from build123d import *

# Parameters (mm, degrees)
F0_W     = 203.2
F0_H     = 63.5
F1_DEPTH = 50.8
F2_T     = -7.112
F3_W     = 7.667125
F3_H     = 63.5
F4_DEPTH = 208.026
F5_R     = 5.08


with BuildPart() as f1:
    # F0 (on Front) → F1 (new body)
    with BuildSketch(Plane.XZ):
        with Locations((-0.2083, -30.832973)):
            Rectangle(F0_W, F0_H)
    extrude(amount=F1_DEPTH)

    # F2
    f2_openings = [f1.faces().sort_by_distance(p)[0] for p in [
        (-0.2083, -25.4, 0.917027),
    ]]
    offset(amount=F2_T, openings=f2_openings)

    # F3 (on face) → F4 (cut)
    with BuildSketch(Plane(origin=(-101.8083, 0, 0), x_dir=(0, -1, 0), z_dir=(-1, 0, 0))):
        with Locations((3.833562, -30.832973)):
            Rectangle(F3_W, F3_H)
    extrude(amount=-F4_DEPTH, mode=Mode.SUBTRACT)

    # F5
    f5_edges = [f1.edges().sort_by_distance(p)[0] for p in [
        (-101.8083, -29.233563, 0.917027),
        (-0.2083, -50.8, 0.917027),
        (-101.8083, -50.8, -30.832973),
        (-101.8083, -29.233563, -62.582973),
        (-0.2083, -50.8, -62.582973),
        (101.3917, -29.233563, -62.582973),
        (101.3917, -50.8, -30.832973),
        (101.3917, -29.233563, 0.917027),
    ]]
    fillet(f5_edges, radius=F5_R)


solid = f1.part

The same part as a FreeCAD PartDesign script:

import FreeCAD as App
import Part
import Sketcher
from FreeCAD import Vector
Q = App.Units.Quantity


def edges_at(feature, points):
    """Names of the edges that pass closest to the given points."""
    edges = feature.Shape.Edges
    near = lambda p: min(range(len(edges)), key=lambda i: edges[i].distToShape(Part.Vertex(*p))[0])
    return sorted({f"Edge{near(p) + 1}" for p in points})


def faces_at(feature, points):
    """Names of the faces that lie closest to the given points."""
    faces = feature.Shape.Faces
    near = lambda p: min(range(len(faces)), key=lambda i: faces[i].distToShape(Part.Vertex(*p))[0])
    return sorted({f"Face{near(p) + 1}" for p in points})


def add_polygon(sketch, points):
    """Adds a closed chain of lines whose ends are joined by coincident constraints."""
    first, n = sketch.GeometryCount, len(points)
    for a, b in zip(points, points[1:] + points[:1]):
        sketch.addGeometry(Part.LineSegment(App.Vector(*a, 0), App.Vector(*b, 0)), False)
    for i in range(n):
        sketch.addConstraint(Sketcher.Constraint("Coincident", first + i, 2, first + (i + 1) % n, 1))

doc = App.newDocument("Part")
body = doc.addObject("PartDesign::Body", "Body")

# Sketch on XZ plane
sketch1 = body.newObject("Sketcher::SketchObject", "Sketch")
sketch1.AttachmentSupport = (doc.getObject("XZ_Plane"), [""])
sketch1.MapMode = "FlatFace"
add_polygon(sketch1, [(-101.8083, 0.917027), (-101.8083, -62.582973), (101.3917, -62.582973), (101.3917, 0.917027)])  # lines 0-3
sketch1.addConstraint([
    Sketcher.Constraint("Vertical", 0),
    Sketcher.Constraint("Horizontal", 1),
    Sketcher.Constraint("Vertical", 2),
    Sketcher.Constraint("Horizontal", 3),
    Sketcher.Constraint("DistanceX", 1, 1, 1, 2, Q("8 in")),
    Sketcher.Constraint("DistanceY", 0, 2, 0, 1, Q("2.5 in")),
    Sketcher.Constraint("DistanceX", 0, 2, -1, 1, Q("101.8083 mm")),
    Sketcher.Constraint("DistanceY", 0, 2, -1, 1, Q("62.582973 mm")),
])
pad1 = body.newObject("PartDesign::Pad", "Pad")
pad1.Profile = sketch1
pad1.Length = Q("2 in")
doc.recompute()

thickness = body.newObject("PartDesign::Thickness", "Thickness")
thickness.Base = (pad1, faces_at(pad1, [(-0.208, -25.4, 0.917)]))
thickness.Value = Q("0.28 in")
thickness.Reversed = True
thickness.Join = "Arc"

# Sketch on YZ plane
sketch2 = body.newObject("Sketcher::SketchObject", "Sketch001")
sketch2.AttachmentSupport = (doc.getObject("YZ_Plane"), [""])
sketch2.MapMode = "FlatFace"
sketch2.AttachmentOffset = App.Placement(Vector(0, 0, -101.8083), App.Rotation())
add_polygon(sketch2, [(0, 0.917027), (0, -62.582973), (-7.667124, -62.582973), (-7.667124, 0.917027)])  # lines 0-3
sketch2.addConstraint([
    Sketcher.Constraint("Vertical", 0),
    Sketcher.Constraint("Horizontal", 1),
    Sketcher.Constraint("Vertical", 2),
    Sketcher.Constraint("Horizontal", 3),
    Sketcher.Constraint("PointOnObject", 0, 2, -2),
    Sketcher.Constraint("DistanceY", 0, 2, 0, 1, Q("2.5 in")),
    Sketcher.Constraint("DistanceX", 1, 2, 1, 1, Q("7.667125 mm")),
    Sketcher.Constraint("DistanceY", 0, 2, -1, 1, Q("62.582973 mm")),
])
pocket1 = body.newObject("PartDesign::Pocket", "Pocket")
pocket1.Profile = sketch2
pocket1.Length = Q("8.19 in")
pocket1.Reversed = True
doc.recompute()

fillet = body.newObject("PartDesign::Fillet", "Fillet")
fillet.Base = (pocket1, edges_at(pocket1, [
    (-101.808, -29.234, 0.917),
    (-0.208, -50.8, 0.917),
    (-101.808, -50.8, -30.833),
    (-101.808, -29.234, -62.583),
    (-0.208, -50.8, -62.583),
    (101.392, -29.234, -62.583),
    (101.392, -50.8, -30.833),
    (101.392, -29.234, 0.917),
]))
fillet.Radius = Q("0.2 in")

doc.recompute()
